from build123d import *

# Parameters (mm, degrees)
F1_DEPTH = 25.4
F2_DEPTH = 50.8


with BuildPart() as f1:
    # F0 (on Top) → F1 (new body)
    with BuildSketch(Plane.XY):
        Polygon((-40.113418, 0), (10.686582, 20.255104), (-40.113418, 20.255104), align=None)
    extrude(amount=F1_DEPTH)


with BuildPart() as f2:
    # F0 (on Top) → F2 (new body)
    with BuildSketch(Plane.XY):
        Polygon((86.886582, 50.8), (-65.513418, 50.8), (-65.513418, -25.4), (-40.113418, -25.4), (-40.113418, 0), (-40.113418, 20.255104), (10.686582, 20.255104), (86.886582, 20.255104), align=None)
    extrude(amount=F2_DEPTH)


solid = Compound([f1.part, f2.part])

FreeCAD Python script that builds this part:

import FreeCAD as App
import Part
import Sketcher

V = App.Vector
Q = App.Units.Quantity

doc = App.newDocument("Part")
body = doc.addObject("PartDesign::Body", "Body")

# Sketch on XY plane
sketch1 = body.newObject("Sketcher::SketchObject", "Sketch")
sketch1.AttachmentSupport = (doc.getObject("XY_Plane"), [""])
sketch1.MapMode = "FlatFace"
sketch1.addGeometry([
    Part.LineSegment(V(-40, 0, 0), V(11, 20, 0)),
    Part.LineSegment(V(11, 20, 0), V(-40, 20, 0)),
    Part.LineSegment(V(-40, 20, 0), V(-40, 0, 0)),
], False)
sketch1.addConstraint([
    Sketcher.Constraint("Coincident", 0, 2, 1, 1),
    Sketcher.Constraint("Coincident", 1, 2, 2, 1),
    Sketcher.Constraint("Coincident", 2, 2, 0, 1),
    Sketcher.Constraint("Horizontal", 1),
    Sketcher.Constraint("Vertical", 2),
    Sketcher.Constraint("PointOnObject", 2, 2, -1),
    Sketcher.Constraint("DistanceX", 1, 2, 1, 1, Q("2 in")),
    Sketcher.Constraint("DistanceY", 2, 2, 2, 1, Q("20.255104 mm")),
    Sketcher.Constraint("DistanceX", 1, 2, -1, 1, Q("40.113418 mm")),
])
pad1 = body.newObject("PartDesign::Pad", "Pad")
pad1.Profile = sketch1
pad1.Length = Q("1 in")
body2 = doc.addObject("PartDesign::Body", "Body001")

# Sketch on XY plane
sketch2 = body2.newObject("Sketcher::SketchObject", "Sketch001")
sketch2.AttachmentSupport = (doc.getObject("XY_Plane001"), [""])
sketch2.MapMode = "FlatFace"
sketch2.addGeometry([
    Part.LineSegment(V(87, 51, 0), V(-66, 51, 0)),  # 0
    Part.LineSegment(V(-66, 51, 0), V(-66, -25, 0)),  # 1
    Part.LineSegment(V(-66, -25, 0), V(-40, -25, 0)),  # 2
    Part.LineSegment(V(-40, -25, 0), V(-40, 20, 0)),  # 3
    Part.LineSegment(V(-40, 20, 0), V(87, 20, 0)),  # 4
    Part.LineSegment(V(87, 20, 0), V(87, 51, 0)),  # 5
], False)
sketch2.addConstraint([
    Sketcher.Constraint("Coincident", 0, 2, 1, 1),
    Sketcher.Constraint("Coincident", 1, 2, 2, 1),
    Sketcher.Constraint("Coincident", 2, 2, 3, 1),
    Sketcher.Constraint("Coincident", 3, 2, 4, 1),
    Sketcher.Constraint("Coincident", 4, 2, 5, 1),
    Sketcher.Constraint("Coincident", 5, 2, 0, 1),
    Sketcher.Constraint("Horizontal", 0),
    Sketcher.Constraint("Vertical", 1),
    Sketcher.Constraint("Horizontal", 2),
    Sketcher.Constraint("Vertical", 3),
    Sketcher.Constraint("Horizontal", 4),
    Sketcher.Constraint("Vertical", 5),
    Sketcher.Constraint("DistanceX", 0, 2, 0, 1, Q("6 in")),
    Sketcher.Constraint("DistanceX", 2, 1, 2, 2, Q("1 in")),
    Sketcher.Constraint("DistanceY", 1, 2, 1, 1, Q("3 in")),
    Sketcher.Constraint("DistanceY", -1, 1, 0, 2, Q("2 in")),
    Sketcher.Constraint("DistanceY", 3, 1, 3, 2, Q("45.655104 mm")),
    Sketcher.Constraint("DistanceX", 0, 2, -1, 1, Q("65.513418 mm")),
])
pad2 = body2.newObject("PartDesign::Pad", "Pad001")
pad2.Profile = sketch2
pad2.Length = Q("2 in")

doc.recompute()
